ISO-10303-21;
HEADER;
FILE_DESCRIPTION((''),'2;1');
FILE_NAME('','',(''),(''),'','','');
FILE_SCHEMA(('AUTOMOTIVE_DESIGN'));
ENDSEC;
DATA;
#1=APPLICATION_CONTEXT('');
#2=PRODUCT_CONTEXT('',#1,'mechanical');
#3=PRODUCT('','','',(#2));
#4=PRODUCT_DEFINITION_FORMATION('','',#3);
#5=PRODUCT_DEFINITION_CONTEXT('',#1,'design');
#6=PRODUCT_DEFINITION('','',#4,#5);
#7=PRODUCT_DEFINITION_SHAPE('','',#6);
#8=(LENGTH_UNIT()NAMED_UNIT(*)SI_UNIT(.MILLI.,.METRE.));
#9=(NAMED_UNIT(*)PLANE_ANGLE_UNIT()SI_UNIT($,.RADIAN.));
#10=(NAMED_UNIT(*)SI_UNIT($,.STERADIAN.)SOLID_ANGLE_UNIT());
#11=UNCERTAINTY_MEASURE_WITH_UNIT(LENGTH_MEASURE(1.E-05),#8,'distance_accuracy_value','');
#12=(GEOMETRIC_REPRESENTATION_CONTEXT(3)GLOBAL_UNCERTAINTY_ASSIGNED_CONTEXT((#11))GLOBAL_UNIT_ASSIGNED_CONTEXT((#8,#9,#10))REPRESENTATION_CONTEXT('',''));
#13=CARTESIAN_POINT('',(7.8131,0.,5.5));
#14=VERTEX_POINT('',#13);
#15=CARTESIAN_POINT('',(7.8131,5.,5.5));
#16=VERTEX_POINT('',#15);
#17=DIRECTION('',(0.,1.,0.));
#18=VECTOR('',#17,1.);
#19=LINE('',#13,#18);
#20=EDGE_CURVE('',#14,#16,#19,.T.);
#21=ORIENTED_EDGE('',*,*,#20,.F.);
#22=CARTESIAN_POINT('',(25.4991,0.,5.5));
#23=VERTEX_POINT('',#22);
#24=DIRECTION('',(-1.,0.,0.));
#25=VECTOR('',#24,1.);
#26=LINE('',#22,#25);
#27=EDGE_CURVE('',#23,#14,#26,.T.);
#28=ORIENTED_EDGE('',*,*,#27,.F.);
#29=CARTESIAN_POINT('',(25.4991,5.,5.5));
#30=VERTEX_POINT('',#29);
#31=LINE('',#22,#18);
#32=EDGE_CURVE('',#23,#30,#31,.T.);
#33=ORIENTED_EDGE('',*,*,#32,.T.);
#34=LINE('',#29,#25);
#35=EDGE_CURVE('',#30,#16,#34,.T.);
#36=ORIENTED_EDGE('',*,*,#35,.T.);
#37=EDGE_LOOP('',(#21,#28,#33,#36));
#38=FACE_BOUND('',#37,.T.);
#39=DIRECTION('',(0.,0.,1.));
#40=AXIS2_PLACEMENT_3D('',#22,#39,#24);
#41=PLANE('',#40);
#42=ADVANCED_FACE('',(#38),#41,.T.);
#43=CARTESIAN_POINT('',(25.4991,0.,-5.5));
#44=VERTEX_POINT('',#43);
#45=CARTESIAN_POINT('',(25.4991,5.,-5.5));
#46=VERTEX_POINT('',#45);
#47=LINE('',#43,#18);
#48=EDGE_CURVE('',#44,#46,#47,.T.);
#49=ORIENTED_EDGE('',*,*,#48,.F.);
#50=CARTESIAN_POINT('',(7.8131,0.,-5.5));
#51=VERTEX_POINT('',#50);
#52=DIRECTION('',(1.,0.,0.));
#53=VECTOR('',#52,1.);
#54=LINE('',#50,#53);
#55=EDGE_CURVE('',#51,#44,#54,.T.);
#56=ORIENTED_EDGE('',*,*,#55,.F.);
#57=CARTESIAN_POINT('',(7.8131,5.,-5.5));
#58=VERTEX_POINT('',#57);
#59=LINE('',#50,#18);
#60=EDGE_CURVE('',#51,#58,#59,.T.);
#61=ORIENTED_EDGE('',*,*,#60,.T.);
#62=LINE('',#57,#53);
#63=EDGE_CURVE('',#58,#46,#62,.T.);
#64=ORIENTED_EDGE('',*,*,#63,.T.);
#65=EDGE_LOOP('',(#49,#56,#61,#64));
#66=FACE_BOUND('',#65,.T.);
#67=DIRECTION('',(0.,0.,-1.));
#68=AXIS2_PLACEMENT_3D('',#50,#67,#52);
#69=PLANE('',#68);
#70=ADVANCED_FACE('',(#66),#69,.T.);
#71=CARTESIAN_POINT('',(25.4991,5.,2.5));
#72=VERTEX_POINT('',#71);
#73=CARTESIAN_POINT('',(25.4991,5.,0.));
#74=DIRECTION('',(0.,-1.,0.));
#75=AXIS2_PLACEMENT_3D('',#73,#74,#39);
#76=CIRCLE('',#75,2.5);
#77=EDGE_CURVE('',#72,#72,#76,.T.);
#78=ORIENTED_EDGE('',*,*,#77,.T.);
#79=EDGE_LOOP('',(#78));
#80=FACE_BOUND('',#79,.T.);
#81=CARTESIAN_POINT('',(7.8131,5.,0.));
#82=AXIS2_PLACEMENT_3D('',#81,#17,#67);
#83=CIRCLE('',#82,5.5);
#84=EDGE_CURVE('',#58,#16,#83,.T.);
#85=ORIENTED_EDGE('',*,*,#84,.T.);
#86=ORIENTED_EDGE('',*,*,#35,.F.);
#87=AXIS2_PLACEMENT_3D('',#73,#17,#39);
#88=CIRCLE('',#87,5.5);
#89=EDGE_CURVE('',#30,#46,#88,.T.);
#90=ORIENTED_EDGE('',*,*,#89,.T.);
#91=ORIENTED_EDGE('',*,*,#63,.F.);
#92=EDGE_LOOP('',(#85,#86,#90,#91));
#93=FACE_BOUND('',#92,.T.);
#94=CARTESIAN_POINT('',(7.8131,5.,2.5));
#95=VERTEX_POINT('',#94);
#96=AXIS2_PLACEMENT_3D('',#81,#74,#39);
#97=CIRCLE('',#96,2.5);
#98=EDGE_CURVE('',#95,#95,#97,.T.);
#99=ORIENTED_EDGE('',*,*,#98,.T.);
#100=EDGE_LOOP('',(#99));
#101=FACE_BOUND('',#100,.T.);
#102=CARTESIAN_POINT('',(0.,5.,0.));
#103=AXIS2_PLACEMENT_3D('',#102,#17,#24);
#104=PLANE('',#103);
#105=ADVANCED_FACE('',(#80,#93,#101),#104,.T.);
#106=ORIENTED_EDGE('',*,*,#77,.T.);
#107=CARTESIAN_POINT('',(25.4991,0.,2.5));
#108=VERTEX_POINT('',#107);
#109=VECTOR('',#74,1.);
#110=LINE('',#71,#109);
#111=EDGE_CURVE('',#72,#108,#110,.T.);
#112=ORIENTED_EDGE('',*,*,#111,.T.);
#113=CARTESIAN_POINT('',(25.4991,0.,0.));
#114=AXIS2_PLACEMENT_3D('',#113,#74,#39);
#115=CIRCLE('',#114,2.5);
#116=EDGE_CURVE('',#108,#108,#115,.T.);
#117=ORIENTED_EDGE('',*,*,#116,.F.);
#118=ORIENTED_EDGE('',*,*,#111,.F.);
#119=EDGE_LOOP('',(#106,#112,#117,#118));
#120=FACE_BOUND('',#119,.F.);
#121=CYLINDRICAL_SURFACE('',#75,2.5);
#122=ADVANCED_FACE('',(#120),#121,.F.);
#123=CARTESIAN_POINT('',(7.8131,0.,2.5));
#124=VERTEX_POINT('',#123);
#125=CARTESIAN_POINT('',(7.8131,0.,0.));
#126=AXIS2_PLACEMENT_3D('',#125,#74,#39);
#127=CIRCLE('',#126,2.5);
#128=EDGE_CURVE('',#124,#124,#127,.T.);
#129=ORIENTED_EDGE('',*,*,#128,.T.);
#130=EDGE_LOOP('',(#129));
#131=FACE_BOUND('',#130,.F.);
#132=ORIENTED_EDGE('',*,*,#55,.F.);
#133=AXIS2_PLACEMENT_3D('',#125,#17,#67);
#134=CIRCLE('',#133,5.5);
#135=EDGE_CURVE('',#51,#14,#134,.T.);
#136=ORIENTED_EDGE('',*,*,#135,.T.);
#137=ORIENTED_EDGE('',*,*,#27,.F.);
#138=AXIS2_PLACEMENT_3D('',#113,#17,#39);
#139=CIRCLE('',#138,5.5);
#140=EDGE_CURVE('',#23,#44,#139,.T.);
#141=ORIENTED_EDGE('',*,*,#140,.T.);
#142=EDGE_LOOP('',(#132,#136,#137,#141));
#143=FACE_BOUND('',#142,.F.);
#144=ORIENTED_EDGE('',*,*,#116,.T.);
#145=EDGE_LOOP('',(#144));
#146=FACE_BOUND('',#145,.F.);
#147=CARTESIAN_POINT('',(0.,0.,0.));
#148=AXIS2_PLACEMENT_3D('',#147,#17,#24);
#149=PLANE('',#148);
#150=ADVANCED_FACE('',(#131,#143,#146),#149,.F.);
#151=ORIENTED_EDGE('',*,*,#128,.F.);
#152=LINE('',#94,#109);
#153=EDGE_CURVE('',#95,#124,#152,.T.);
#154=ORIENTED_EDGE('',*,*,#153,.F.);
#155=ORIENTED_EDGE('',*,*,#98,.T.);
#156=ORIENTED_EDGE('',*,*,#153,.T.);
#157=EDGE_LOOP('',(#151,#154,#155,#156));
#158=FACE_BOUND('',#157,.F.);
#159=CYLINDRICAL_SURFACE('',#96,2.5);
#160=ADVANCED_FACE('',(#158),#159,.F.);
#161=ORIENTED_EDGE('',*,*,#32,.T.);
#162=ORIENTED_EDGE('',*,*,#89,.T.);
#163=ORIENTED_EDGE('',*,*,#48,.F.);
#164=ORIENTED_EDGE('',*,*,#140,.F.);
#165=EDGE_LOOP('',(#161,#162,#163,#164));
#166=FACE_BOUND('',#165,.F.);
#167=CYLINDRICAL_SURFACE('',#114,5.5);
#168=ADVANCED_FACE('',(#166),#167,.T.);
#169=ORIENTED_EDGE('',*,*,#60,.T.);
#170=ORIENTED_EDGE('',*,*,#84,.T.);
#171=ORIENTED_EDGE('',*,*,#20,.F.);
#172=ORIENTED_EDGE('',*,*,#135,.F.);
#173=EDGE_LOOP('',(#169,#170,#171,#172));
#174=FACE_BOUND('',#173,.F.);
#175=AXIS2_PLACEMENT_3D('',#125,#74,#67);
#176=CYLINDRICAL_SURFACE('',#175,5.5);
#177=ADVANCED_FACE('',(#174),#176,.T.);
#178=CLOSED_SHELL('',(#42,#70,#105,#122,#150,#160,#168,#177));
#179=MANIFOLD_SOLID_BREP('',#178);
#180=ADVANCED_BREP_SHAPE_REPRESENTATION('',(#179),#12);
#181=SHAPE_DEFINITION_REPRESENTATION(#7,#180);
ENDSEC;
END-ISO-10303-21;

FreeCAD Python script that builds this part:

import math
import FreeCAD as App
import Part
import Sketcher
from FreeCAD import Vector

doc = App.newDocument("Part")
body = doc.addObject("PartDesign::Body", "Body")

# Sketch on XZ plane
sketch1 = body.newObject("Sketcher::SketchObject", "Sketch")
sketch1.AttachmentSupport = (doc.getObject("XZ_Plane"), [""])
sketch1.MapMode = "FlatFace"
sketch1.addGeometry([
    Part.LineSegment(Vector(25, -6, 0), Vector(8, -6, 0)),
    Part.ArcOfCircle(Part.Circle(Vector(8, 0, 0), Vector(0, 0, 1), 6), math.radians(90), math.radians(270)),
    Part.LineSegment(Vector(8, 6, 0), Vector(25, 6, 0)),
    Part.ArcOfCircle(Part.Circle(Vector(25, 0, 0), Vector(0, 0, 1), 6), math.radians(-90), math.radians(90)),
], False)
sketch1.addConstraint([
    Sketcher.Constraint("Tangent", 0, 2, 1, 2),
    Sketcher.Constraint("Tangent", 1, 1, 2, 1),
    Sketcher.Constraint("Tangent", 2, 2, 3, 2),
    Sketcher.Constraint("Tangent", 3, 1, 0, 1),
    Sketcher.Constraint("Horizontal", 0),
    Sketcher.Constraint("Horizontal", 2),
    Sketcher.Constraint("PointOnObject", 1, 3, -1),
    Sketcher.Constraint("Radius", 1, 5.5),
    Sketcher.Constraint("DistanceX", 0, 2, 0, 1, 17.686),
    Sketcher.Constraint("DistanceX", -1, 1, 1, 3, 7.813),
])
pad1 = body.newObject("PartDesign::Pad", "Pad")
pad1.Profile = sketch1
pad1.Length = 5
pad1.Reversed = True

# Sketch on XZ plane
sketch2 = body.newObject("Sketcher::SketchObject", "Sketch001")
sketch2.AttachmentSupport = (doc.getObject("XZ_Plane"), [""])
sketch2.MapMode = "FlatFace"
sketch2.AttachmentOffset = App.Placement(Vector(0, 0, -5), App.Rotation())
sketch2.addGeometry([
    Part.Circle(Vector(7.8, 0, 0), Vector(0, 0, 1), 2.5),
    Part.Circle(Vector(25.5, 0, 0), Vector(0, 0, 1), 2.5),
], False)
sketch2.addConstraint([
    Sketcher.Constraint("Equal", 0, 1),
    Sketcher.Constraint("PointOnObject", 0, 3, -1),
    Sketcher.Constraint("PointOnObject", 1, 3, -1),
    Sketcher.Constraint("Diameter", 0, 5.0),
    Sketcher.Constraint("DistanceX", -1, 1, 0, 3, 7.813),
    Sketcher.Constraint("DistanceX", -1, 1, 1, 3, 25.499),
])
doc.recompute()
hole = body.newObject("PartDesign::Hole", "Hole")
hole.Profile = sketch2
hole.ThreadType = "None"
hole.Diameter = 5
hole.DepthType = "ThroughAll"
hole.Reversed = True

doc.recompute()
